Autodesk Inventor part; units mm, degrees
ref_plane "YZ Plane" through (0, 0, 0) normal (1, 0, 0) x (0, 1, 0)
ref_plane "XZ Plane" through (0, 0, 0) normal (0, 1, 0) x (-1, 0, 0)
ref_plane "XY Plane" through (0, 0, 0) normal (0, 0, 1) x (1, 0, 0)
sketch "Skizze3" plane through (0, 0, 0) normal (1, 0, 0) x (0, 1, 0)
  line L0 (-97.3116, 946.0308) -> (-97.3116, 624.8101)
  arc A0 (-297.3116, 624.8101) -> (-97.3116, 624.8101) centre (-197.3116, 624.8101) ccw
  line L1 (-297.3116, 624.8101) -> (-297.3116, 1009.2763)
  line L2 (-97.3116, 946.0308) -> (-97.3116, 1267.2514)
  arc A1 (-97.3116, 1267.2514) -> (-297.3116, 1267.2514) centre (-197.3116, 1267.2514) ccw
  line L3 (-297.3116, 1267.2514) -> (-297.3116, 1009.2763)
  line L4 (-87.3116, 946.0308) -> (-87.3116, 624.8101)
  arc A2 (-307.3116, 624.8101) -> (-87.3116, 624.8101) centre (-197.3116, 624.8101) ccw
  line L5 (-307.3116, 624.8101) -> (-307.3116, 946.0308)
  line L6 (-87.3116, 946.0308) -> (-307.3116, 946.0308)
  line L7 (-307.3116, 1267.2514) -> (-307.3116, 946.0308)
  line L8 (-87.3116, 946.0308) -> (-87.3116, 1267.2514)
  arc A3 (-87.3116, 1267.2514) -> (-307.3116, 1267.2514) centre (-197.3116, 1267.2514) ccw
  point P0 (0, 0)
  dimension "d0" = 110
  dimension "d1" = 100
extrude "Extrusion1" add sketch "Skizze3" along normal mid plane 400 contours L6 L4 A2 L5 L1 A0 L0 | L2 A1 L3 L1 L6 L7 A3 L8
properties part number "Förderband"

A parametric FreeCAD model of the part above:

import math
import FreeCAD as App
import Part
import Sketcher
Q = App.Units.Quantity

doc = App.newDocument("Part")
body = doc.addObject("PartDesign::Body", "Body")

# Sketch on YZ plane
sketch1 = body.newObject("Sketcher::SketchObject", "Sketch")
sketch1.AttachmentSupport = (doc.getObject("YZ_Plane"), [""])
sketch1.MapMode = "FlatFace"
sketch1.addGeometry(Part.LineSegment(App.Vector(-87, 625, 0), App.Vector(-87, 1267, 0)), False)
sketch1.addGeometry(Part.ArcOfCircle(Part.Circle(App.Vector(-197, 1267, 0), App.Vector(0, 0, 1), 110), math.radians(0), math.radians(180)), False)
sketch1.addGeometry(Part.LineSegment(App.Vector(-307, 1267, 0), App.Vector(-307, 625, 0)), False)
sketch1.addGeometry(Part.ArcOfCircle(Part.Circle(App.Vector(-197, 625, 0), App.Vector(0, 0, 1), 110), math.radians(180), math.radians(360)), False)
sketch1.addGeometry(Part.LineSegment(App.Vector(-297, 625, 0), App.Vector(-297, 1267, 0)), False)
sketch1.addGeometry(Part.ArcOfCircle(Part.Circle(App.Vector(-197, 1267, 0), App.Vector(0, 0, 1), 100), math.radians(0), math.radians(180)), False)
sketch1.addGeometry(Part.LineSegment(App.Vector(-97, 1267, 0), App.Vector(-97, 625, 0)), False)
sketch1.addGeometry(Part.ArcOfCircle(Part.Circle(App.Vector(-197, 625, 0), App.Vector(0, 0, 1), 100), math.radians(180), math.radians(360)), False)
sketch1.addConstraint(Sketcher.Constraint("Tangent", 0, 2, 1, 1))
sketch1.addConstraint(Sketcher.Constraint("Tangent", 1, 2, 2, 1))
sketch1.addConstraint(Sketcher.Constraint("Tangent", 2, 2, 3, 1))
sketch1.addConstraint(Sketcher.Constraint("Tangent", 3, 2, 0, 1))
sketch1.addConstraint(Sketcher.Constraint("Tangent", 4, 2, 5, 2))
sketch1.addConstraint(Sketcher.Constraint("Tangent", 5, 1, 6, 1))
sketch1.addConstraint(Sketcher.Constraint("Tangent", 6, 2, 7, 2))
sketch1.addConstraint(Sketcher.Constraint("Tangent", 7, 1, 4, 1))
sketch1.addConstraint(Sketcher.Constraint("Vertical", 0))
sketch1.addConstraint(Sketcher.Constraint("Vertical", 2))
sketch1.addConstraint(Sketcher.Constraint("Vertical", 4))
sketch1.addConstraint(Sketcher.Constraint("Vertical", 6))
sketch1.addConstraint(Sketcher.Constraint("Coincident", 5, 3, 1, 3))
sketch1.addConstraint(Sketcher.Constraint("Horizontal", 7, 3, 2, 2))
sketch1.addConstraint(Sketcher.Constraint("Radius", 1, Q("110 mm")))
sketch1.addConstraint(Sketcher.Constraint("Radius", 5, Q("100 mm")))
sketch1.addConstraint(Sketcher.Constraint("DistanceY", -1, 1, 3, 3, Q("624.81 mm")))
sketch1.addConstraint(Sketcher.Constraint("DistanceY", 0, 1, 0, 2, Q("642.4413 mm")))
sketch1.addConstraint(Sketcher.Constraint("DistanceX", 1, 3, -1, 1, Q("197.3116 mm")))
pad1 = body.newObject("PartDesign::Pad", "Pad")
pad1.Profile = sketch1
pad1.Length = 400
pad1.Midplane = True

doc.recompute()
